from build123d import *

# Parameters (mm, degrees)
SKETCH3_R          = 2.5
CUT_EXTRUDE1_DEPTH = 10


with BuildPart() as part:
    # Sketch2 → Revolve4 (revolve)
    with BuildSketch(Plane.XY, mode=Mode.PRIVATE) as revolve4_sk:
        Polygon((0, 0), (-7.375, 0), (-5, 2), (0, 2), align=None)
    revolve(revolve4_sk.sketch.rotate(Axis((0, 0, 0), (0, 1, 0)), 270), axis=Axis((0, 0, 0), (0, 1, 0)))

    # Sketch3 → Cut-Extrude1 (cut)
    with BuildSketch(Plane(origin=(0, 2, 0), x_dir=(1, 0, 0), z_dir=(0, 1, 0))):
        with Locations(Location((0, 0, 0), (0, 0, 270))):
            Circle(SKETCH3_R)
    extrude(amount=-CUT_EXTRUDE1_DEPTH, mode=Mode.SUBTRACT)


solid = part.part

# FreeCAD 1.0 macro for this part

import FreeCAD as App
import Part
import Sketcher
from FreeCAD import Vector
Q = App.Units.Quantity

doc = App.newDocument("Part")
params = doc.addObject("Spreadsheet::Sheet", "Params")
for row, (alias, value) in enumerate([
    ("sketch1_width", "5 mm"),
    ("sketch1_height", "2 mm"),
    ("revolution_angle", "360 deg"),
    ("sketch2_diameter", "5 mm"),
    ("pocket1_length", "10 mm"),
], start=1):
    params.set(f"A{row}", alias)
    params.set(f"B{row}", "=" + value)
    params.setAlias(f"B{row}", alias)

body = doc.addObject("PartDesign::Body", "Body")

# Sketch on XY plane
sketch1 = doc.addObject("Sketcher::SketchObject", "Sketch")
body.addObject(sketch1)
sketch1.AttachmentSupport = (doc.XY_Plane, [""])
sketch1.MapMode = "FlatFace"
sketch1.addGeometry([
    Part.LineSegment(Vector(-7.4, 0, 0), Vector(0, 0, 0)),
    Part.LineSegment(Vector(0, 0, 0), Vector(0, 2, 0)),
    Part.LineSegment(Vector(0, 2, 0), Vector(-5, 2, 0)),
    Part.LineSegment(Vector(-5, 2, 0), Vector(-7.4, 0, 0)),
], False)
sketch1.addConstraint([
    Sketcher.Constraint("Coincident", 0, 2, 1, 1),
    Sketcher.Constraint("Coincident", 1, 2, 2, 1),
    Sketcher.Constraint("Coincident", 2, 2, 3, 1),
    Sketcher.Constraint("Coincident", 3, 2, 0, 1),
    Sketcher.Constraint("Horizontal", 0),
    Sketcher.Constraint("Vertical", 1),
    Sketcher.Constraint("Horizontal", 2),
    Sketcher.Constraint("Coincident", 0, 2, -1, 1),
    Sketcher.Constraint("DistanceX", 2, 2, 2, 1, Q("5 mm")),
    Sketcher.Constraint("DistanceY", 1, 1, 1, 2, Q("2 mm")),
    Sketcher.Constraint("DistanceX", 0, 1, 0, 2, Q("7.375 mm")),
])
sketch1.setExpression("Constraints[8]", "Params.sketch1_width")
sketch1.setExpression("Constraints[9]", "Params.sketch1_height")
revolution = doc.addObject("PartDesign::Revolution", "Revolution")
body.addObject(revolution)
revolution.Profile = sketch1
revolution.ReferenceAxis = (sketch1, ["V_Axis"])
revolution.setExpression("Angle", "Params.revolution_angle")

# Sketch on XZ plane
sketch2 = doc.addObject("Sketcher::SketchObject", "Sketch001")
body.addObject(sketch2)
sketch2.AttachmentSupport = (doc.XZ_Plane, [""])
sketch2.MapMode = "FlatFace"
sketch2.AttachmentOffset = App.Placement(Vector(0, 0, -2), App.Rotation())
sketch2.addGeometry(Part.Circle(Vector(0, 0, 0), Vector(0, 0, 1), 2.5), False)
sketch2.addConstraint([
    Sketcher.Constraint("Coincident", 0, 3, -1, 1),
    Sketcher.Constraint("Diameter", 0, Q("5 mm")),
])
sketch2.setExpression("Constraints[1]", "Params.sketch2_diameter")
pocket1 = doc.addObject("PartDesign::Pocket", "Pocket")
body.addObject(pocket1)
pocket1.Profile = sketch2
pocket1.setExpression("Length", "Params.pocket1_length")
pocket1.Reversed = True

doc.recompute()
